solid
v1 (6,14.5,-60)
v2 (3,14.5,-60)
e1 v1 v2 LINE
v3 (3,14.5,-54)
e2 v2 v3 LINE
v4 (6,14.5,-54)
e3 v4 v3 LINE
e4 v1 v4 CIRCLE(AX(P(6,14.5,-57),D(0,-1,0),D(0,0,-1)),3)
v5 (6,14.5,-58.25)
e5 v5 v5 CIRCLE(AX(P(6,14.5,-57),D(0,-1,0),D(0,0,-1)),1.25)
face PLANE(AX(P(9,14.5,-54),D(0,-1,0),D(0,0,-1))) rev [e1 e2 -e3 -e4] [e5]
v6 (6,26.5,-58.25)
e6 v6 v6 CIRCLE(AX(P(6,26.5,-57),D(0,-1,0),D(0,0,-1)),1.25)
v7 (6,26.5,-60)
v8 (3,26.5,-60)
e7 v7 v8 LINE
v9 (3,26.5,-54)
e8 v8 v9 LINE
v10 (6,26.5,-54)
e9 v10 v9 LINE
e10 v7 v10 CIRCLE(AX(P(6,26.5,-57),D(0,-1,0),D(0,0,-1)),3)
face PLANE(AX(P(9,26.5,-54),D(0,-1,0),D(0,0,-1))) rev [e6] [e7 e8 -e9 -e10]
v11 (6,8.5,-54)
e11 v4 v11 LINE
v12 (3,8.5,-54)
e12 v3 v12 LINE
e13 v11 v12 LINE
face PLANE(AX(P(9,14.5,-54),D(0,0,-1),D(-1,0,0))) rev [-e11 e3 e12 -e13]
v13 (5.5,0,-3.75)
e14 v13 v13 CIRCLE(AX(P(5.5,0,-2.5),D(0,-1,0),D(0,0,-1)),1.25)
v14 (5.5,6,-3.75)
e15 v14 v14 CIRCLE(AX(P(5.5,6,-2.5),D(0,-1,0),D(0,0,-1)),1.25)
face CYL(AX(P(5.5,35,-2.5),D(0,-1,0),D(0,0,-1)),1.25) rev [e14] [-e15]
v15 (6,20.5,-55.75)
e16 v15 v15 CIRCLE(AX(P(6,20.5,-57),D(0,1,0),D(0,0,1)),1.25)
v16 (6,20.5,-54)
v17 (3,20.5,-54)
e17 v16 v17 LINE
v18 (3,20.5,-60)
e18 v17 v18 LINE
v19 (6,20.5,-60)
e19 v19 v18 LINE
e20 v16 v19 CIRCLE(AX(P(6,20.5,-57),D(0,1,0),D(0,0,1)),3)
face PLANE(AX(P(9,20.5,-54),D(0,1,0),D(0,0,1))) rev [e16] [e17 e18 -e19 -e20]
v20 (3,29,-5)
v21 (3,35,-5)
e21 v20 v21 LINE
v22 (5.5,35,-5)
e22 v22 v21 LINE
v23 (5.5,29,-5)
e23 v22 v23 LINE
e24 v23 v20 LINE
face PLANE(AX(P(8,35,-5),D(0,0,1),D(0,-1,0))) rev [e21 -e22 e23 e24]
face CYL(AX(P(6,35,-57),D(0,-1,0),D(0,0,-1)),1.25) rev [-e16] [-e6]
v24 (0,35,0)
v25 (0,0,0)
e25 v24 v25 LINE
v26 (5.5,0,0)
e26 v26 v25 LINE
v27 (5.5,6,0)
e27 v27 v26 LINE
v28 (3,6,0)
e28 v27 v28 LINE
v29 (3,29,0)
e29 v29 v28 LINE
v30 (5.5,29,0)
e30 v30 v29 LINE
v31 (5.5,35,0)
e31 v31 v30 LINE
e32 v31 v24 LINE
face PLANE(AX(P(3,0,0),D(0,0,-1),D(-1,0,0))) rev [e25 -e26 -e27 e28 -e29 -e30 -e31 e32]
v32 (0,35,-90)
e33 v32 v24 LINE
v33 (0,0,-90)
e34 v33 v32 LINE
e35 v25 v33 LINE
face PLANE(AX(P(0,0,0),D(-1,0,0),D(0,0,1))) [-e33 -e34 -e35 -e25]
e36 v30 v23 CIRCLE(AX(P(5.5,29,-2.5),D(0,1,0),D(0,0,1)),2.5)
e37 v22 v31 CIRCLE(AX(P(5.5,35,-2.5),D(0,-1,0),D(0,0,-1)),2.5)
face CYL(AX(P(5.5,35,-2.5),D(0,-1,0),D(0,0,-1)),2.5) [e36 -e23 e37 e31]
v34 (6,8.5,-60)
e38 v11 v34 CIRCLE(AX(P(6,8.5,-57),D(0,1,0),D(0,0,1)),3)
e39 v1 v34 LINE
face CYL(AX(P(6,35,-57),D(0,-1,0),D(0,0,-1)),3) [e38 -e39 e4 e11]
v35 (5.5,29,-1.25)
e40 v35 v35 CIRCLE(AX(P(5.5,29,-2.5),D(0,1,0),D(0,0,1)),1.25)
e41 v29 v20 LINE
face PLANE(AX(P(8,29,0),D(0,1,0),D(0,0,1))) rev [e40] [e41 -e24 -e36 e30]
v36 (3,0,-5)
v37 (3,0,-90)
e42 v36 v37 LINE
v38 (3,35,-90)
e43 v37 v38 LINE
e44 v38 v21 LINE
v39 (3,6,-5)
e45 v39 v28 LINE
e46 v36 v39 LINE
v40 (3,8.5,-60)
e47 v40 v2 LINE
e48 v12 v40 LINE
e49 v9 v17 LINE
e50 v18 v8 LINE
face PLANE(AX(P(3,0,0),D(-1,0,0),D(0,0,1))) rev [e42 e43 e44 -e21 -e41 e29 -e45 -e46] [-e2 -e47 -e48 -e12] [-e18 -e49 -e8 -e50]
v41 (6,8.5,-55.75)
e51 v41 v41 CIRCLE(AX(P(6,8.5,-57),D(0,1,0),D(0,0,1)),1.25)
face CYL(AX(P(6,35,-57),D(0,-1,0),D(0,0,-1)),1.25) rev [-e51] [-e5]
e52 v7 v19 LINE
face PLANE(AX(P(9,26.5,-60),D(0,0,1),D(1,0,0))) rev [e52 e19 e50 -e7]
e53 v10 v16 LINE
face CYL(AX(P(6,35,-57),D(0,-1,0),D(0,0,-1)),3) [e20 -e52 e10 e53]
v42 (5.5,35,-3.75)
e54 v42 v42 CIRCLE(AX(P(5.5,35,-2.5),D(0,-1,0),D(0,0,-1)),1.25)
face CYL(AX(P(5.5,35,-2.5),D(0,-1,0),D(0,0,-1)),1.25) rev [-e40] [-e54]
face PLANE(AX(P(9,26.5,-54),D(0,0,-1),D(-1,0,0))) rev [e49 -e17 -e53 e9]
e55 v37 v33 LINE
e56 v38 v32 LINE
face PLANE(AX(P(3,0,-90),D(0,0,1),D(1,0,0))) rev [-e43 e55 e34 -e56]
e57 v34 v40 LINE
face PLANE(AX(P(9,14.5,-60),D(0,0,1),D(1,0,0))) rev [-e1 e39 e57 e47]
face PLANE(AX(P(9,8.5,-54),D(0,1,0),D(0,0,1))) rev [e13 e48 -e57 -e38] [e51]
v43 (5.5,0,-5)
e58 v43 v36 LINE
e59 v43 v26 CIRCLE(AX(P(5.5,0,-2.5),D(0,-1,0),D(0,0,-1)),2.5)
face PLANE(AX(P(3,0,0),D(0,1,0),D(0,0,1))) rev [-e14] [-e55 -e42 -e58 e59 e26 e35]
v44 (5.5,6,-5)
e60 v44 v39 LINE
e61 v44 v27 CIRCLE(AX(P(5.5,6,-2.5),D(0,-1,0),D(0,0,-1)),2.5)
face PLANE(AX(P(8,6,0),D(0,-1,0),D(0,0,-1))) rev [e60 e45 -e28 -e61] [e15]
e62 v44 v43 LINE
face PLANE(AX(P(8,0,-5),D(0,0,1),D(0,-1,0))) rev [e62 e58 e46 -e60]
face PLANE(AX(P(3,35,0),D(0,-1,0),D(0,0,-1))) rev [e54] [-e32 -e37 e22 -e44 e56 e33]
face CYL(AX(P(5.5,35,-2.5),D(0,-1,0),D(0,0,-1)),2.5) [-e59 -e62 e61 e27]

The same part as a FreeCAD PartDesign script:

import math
import FreeCAD as App
import Part
import Sketcher


def add_polygon(sketch, points):
    """Adds a closed chain of lines whose ends are joined by coincident constraints."""
    first, n = sketch.GeometryCount, len(points)
    for a, b in zip(points, points[1:] + points[:1]):
        sketch.addGeometry(Part.LineSegment(App.Vector(*a, 0), App.Vector(*b, 0)), False)
    for i in range(n):
        sketch.addConstraint(Sketcher.Constraint("Coincident", first + i, 2, first + (i + 1) % n, 1))

doc = App.newDocument("Part")
params = doc.addObject("Spreadsheet::Sheet", "Params")
for row, (alias, value) in enumerate([
    ("sketch1_width", "35 mm"),
    ("sketch1_height", "90 mm"),
    ("pad1_length", "3 mm"),
    ("sketch2_width", "6 mm"),
    ("sketch2_height", "5 mm"),
    ("pad2_length", "5 mm"),
    ("sketch3_diameter", "2.5 mm"),
    ("sketch3_radius", "2.5 mm"),
    ("sketch4_width", "6 mm"),
    ("pad3_length", "6 mm"),
    ("sketch5_radius", "3 mm"),
    ("sketch5_diameter", "2.5 mm"),
], start=1):
    params.set(f"A{row}", alias)
    params.set(f"B{row}", "=" + value)
    params.setAlias(f"B{row}", alias)

body = doc.addObject("PartDesign::Body", "Body")

# Sketch on YZ plane
sketch1 = doc.addObject("Sketcher::SketchObject", "Sketch")
body.addObject(sketch1)
sketch1.AttachmentSupport = (doc.YZ_Plane, [""])
sketch1.MapMode = "FlatFace"
add_polygon(sketch1, [(35, 0), (0, 0), (0, -90), (35, -90)])  # lines 0-3
sketch1.addConstraint(Sketcher.Constraint("Horizontal", 0))
sketch1.addConstraint(Sketcher.Constraint("Vertical", 1))
sketch1.addConstraint(Sketcher.Constraint("Horizontal", 2))
sketch1.addConstraint(Sketcher.Constraint("Vertical", 3))
sketch1.addConstraint(Sketcher.Constraint("Coincident", 0, 2, -1, 1))
sketch1.addConstraint(Sketcher.Constraint("DistanceX", 0, 2, 0, 1, 35.0))
sketch1.addConstraint(Sketcher.Constraint("DistanceY", 1, 2, 1, 1, 90.0))
sketch1.setExpression("Constraints[9]", "Params.sketch1_width")
sketch1.setExpression("Constraints[10]", "Params.sketch1_height")
pad1 = doc.addObject("PartDesign::Pad", "Pad")
body.addObject(pad1)
pad1.Profile = sketch1
pad1.setExpression("Length", "Params.pad1_length")

# Sketch on YZ plane
sketch2 = doc.addObject("Sketcher::SketchObject", "Sketch001")
body.addObject(sketch2)
sketch2.AttachmentSupport = (doc.YZ_Plane, [""])
sketch2.MapMode = "FlatFace"
sketch2.AttachmentOffset = App.Placement(App.Vector(0, 0, 3), App.Rotation())
add_polygon(sketch2, [(35, 0), (29, 0), (29, -5), (35, -5)])  # lines 0-3
add_polygon(sketch2, [(6, 0), (0, 0), (0, -5), (6, -5)])  # lines 4-7
sketch2.addConstraint(Sketcher.Constraint("Horizontal", 0))
sketch2.addConstraint(Sketcher.Constraint("Vertical", 1))
sketch2.addConstraint(Sketcher.Constraint("Horizontal", 2))
sketch2.addConstraint(Sketcher.Constraint("Vertical", 3))
sketch2.addConstraint(Sketcher.Constraint("Horizontal", 4))
sketch2.addConstraint(Sketcher.Constraint("Vertical", 5))
sketch2.addConstraint(Sketcher.Constraint("Horizontal", 6))
sketch2.addConstraint(Sketcher.Constraint("Vertical", 7))
sketch2.addConstraint(Sketcher.Constraint("Coincident", 4, 2, -1, 1))
sketch2.addConstraint(Sketcher.Constraint("PointOnObject", 0, 2, -1))
sketch2.addConstraint(Sketcher.Constraint("Horizontal", 2, 2, 5, 2))
sketch2.addConstraint(Sketcher.Constraint("Equal", 2, 4))
sketch2.addConstraint(Sketcher.Constraint("DistanceX", 0, 2, 0, 1, 6.0))
sketch2.addConstraint(Sketcher.Constraint("DistanceY", 1, 2, 1, 1, 5.0))
sketch2.addConstraint(Sketcher.Constraint("DistanceX", -1, 1, 0, 2, 29.0))
sketch2.setExpression("Constraints[20]", "Params.sketch2_width")
sketch2.setExpression("Constraints[21]", "Params.sketch2_height")
pad2 = doc.addObject("PartDesign::Pad", "Pad001")
body.addObject(pad2)
pad2.Profile = sketch2
pad2.setExpression("Length", "Params.pad2_length")

# Sketch on XZ plane
sketch3 = doc.addObject("Sketcher::SketchObject", "Sketch002")
body.addObject(sketch3)
sketch3.AttachmentSupport = (doc.XZ_Plane, [""])
sketch3.MapMode = "FlatFace"
sketch3.addGeometry(Part.Circle(App.Vector(5.5, -2.5, 0), App.Vector(0, 0, 1), 1.2), False)
sketch3.addGeometry(Part.LineSegment(App.Vector(8, -5, 0), App.Vector(8, -2.5, 0)), False)
sketch3.addGeometry(Part.ArcOfCircle(Part.Circle(App.Vector(5.5, -2.5, 0), App.Vector(0, 0, 1), 2.5), math.radians(-90), math.radians(0)), False)
sketch3.addGeometry(Part.LineSegment(App.Vector(5.5, -5, 0), App.Vector(8, -5, 0)), False)
sketch3.addGeometry(Part.LineSegment(App.Vector(8, 0, 0), App.Vector(5.5, 0, 0)), False)
sketch3.addGeometry(Part.ArcOfCircle(Part.Circle(App.Vector(5.5, -2.5, 0), App.Vector(0, 0, 1), 2.5), math.radians(0), math.radians(90)), False)
sketch3.addGeometry(Part.LineSegment(App.Vector(8, -2.5, 0), App.Vector(8, 0, 0)), False)
sketch3.addConstraint(Sketcher.Constraint("Tangent", 1, 2, 2, 2))
sketch3.addConstraint(Sketcher.Constraint("Tangent", 2, 1, 3, 1))
sketch3.addConstraint(Sketcher.Constraint("Coincident", 3, 2, 1, 1))
sketch3.addConstraint(Sketcher.Constraint("Tangent", 4, 2, 5, 2))
sketch3.addConstraint(Sketcher.Constraint("Tangent", 5, 1, 6, 1))
sketch3.addConstraint(Sketcher.Constraint("Coincident", 6, 2, 4, 1))
sketch3.addConstraint(Sketcher.Constraint("Vertical", 1))
sketch3.addConstraint(Sketcher.Constraint("Horizontal", 3))
sketch3.addConstraint(Sketcher.Constraint("Horizontal", 4))
sketch3.addConstraint(Sketcher.Constraint("Vertical", 6))
sketch3.addConstraint(Sketcher.Constraint("Coincident", 2, 3, 0, 3))
sketch3.addConstraint(Sketcher.Constraint("Coincident", 5, 3, 0, 3))
sketch3.addConstraint(Sketcher.Constraint("Equal", 2, 5))
sketch3.addConstraint(Sketcher.Constraint("PointOnObject", 4, 2, -1))
sketch3.addConstraint(Sketcher.Constraint("Diameter", 0, 2.5))
sketch3.addConstraint(Sketcher.Constraint("Radius", 2, 2.5))
sketch3.addConstraint(Sketcher.Constraint("DistanceX", -1, 1, 1, 2, 8.0))
sketch3.setExpression("Constraints[14]", "Params.sketch3_diameter")
sketch3.setExpression("Constraints[15]", "Params.sketch3_radius")
pocket1 = doc.addObject("PartDesign::Pocket", "Pocket")
body.addObject(pocket1)
pocket1.Profile = sketch3
pocket1.Type = "ThroughAll"

# Sketch on YZ plane
sketch4 = doc.addObject("Sketcher::SketchObject", "Sketch003")
body.addObject(sketch4)
sketch4.AttachmentSupport = (doc.YZ_Plane, [""])
sketch4.MapMode = "FlatFace"
sketch4.AttachmentOffset = App.Placement(App.Vector(0, 0, 3), App.Rotation())
add_polygon(sketch4, [(26, -54), (20, -54), (20, -60), (26, -60)])  # lines 0-3
add_polygon(sketch4, [(14, -54), (8, -54), (8, -60), (14, -60)])  # lines 4-7
sketch4.addConstraint(Sketcher.Constraint("Horizontal", 0))
sketch4.addConstraint(Sketcher.Constraint("Vertical", 1))
sketch4.addConstraint(Sketcher.Constraint("Horizontal", 2))
sketch4.addConstraint(Sketcher.Constraint("Vertical", 3))
sketch4.addConstraint(Sketcher.Constraint("Horizontal", 4))
sketch4.addConstraint(Sketcher.Constraint("Vertical", 5))
sketch4.addConstraint(Sketcher.Constraint("Horizontal", 6))
sketch4.addConstraint(Sketcher.Constraint("Vertical", 7))
sketch4.addConstraint(Sketcher.Constraint("Horizontal", 3, 2, 4, 2))
sketch4.addConstraint(Sketcher.Constraint("Horizontal", 2, 2, 5, 2))
sketch4.addConstraint(Sketcher.Constraint("Equal", 2, 4))
sketch4.addConstraint(Sketcher.Constraint("Equal", 6, 1))
sketch4.addConstraint(Sketcher.Constraint("DistanceX", 0, 2, 0, 1, 6.0))
sketch4.addConstraint(Sketcher.Constraint("DistanceY", 0, 2, -1, 1, 54.0))
sketch4.addConstraint(Sketcher.Constraint("DistanceX", 4, 2, 0, 2, 12.0))
sketch4.addConstraint(Sketcher.Constraint("DistanceX", -1, 1, 0, 2, 20.5))
sketch4.setExpression("Constraints[20]", "Params.sketch4_width")
pad3 = doc.addObject("PartDesign::Pad", "Pad002")
body.addObject(pad3)
pad3.Profile = sketch4
pad3.setExpression("Length", "Params.pad3_length")

# Sketch on XZ plane
sketch5 = doc.addObject("Sketcher::SketchObject", "Sketch004")
body.addObject(sketch5)
sketch5.AttachmentSupport = (doc.XZ_Plane, [""])
sketch5.MapMode = "FlatFace"
sketch5.AttachmentOffset = App.Placement(App.Vector(0, 0, -8.5), App.Rotation())
sketch5.addGeometry(Part.Circle(App.Vector(6, -57, 0), App.Vector(0, 0, 1), 1.2), False)
sketch5.addGeometry(Part.LineSegment(App.Vector(9, -60, 0), App.Vector(9, -57, 0)), False)
sketch5.addGeometry(Part.ArcOfCircle(Part.Circle(App.Vector(6, -57, 0), App.Vector(0, 0, 1), 3), math.radians(-90), math.radians(0)), False)
sketch5.addGeometry(Part.LineSegment(App.Vector(6, -60, 0), App.Vector(9, -60, 0)), False)
sketch5.addGeometry(Part.LineSegment(App.Vector(9, -54, 0), App.Vector(6, -54, 0)), False)
sketch5.addGeometry(Part.ArcOfCircle(Part.Circle(App.Vector(6, -57, 0), App.Vector(0, 0, 1), 3), math.radians(0), math.radians(90)), False)
sketch5.addGeometry(Part.LineSegment(App.Vector(9, -57, 0), App.Vector(9, -54, 0)), False)
sketch5.addConstraint(Sketcher.Constraint("Tangent", 1, 2, 2, 2))
sketch5.addConstraint(Sketcher.Constraint("Tangent", 2, 1, 3, 1))
sketch5.addConstraint(Sketcher.Constraint("Coincident", 3, 2, 1, 1))
sketch5.addConstraint(Sketcher.Constraint("Tangent", 4, 2, 5, 2))
sketch5.addConstraint(Sketcher.Constraint("Tangent", 5, 1, 6, 1))
sketch5.addConstraint(Sketcher.Constraint("Coincident", 6, 2, 4, 1))
sketch5.addConstraint(Sketcher.Constraint("Vertical", 1))
sketch5.addConstraint(Sketcher.Constraint("Horizontal", 3))
sketch5.addConstraint(Sketcher.Constraint("Horizontal", 4))
sketch5.addConstraint(Sketcher.Constraint("Vertical", 6))
sketch5.addConstraint(Sketcher.Constraint("Coincident", 2, 3, 0, 3))
sketch5.addConstraint(Sketcher.Constraint("Coincident", 5, 3, 0, 3))
sketch5.addConstraint(Sketcher.Constraint("Equal", 2, 5))
sketch5.addConstraint(Sketcher.Constraint("Radius", 2, 3.0))
sketch5.addConstraint(Sketcher.Constraint("Diameter", 0, 2.5))
sketch5.addConstraint(Sketcher.Constraint("DistanceX", -1, 1, 0, 3, 6.0))
sketch5.addConstraint(Sketcher.Constraint("DistanceY", 0, 3, -1, 1, 57.0))
sketch5.setExpression("Constraints[13]", "Params.sketch5_radius")
sketch5.setExpression("Constraints[14]", "Params.sketch5_diameter")
pocket2 = doc.addObject("PartDesign::Pocket", "Pocket001")
body.addObject(pocket2)
pocket2.Profile = sketch5
pocket2.Type = "ThroughAll"
pocket2.Midplane = True

doc.recompute()
